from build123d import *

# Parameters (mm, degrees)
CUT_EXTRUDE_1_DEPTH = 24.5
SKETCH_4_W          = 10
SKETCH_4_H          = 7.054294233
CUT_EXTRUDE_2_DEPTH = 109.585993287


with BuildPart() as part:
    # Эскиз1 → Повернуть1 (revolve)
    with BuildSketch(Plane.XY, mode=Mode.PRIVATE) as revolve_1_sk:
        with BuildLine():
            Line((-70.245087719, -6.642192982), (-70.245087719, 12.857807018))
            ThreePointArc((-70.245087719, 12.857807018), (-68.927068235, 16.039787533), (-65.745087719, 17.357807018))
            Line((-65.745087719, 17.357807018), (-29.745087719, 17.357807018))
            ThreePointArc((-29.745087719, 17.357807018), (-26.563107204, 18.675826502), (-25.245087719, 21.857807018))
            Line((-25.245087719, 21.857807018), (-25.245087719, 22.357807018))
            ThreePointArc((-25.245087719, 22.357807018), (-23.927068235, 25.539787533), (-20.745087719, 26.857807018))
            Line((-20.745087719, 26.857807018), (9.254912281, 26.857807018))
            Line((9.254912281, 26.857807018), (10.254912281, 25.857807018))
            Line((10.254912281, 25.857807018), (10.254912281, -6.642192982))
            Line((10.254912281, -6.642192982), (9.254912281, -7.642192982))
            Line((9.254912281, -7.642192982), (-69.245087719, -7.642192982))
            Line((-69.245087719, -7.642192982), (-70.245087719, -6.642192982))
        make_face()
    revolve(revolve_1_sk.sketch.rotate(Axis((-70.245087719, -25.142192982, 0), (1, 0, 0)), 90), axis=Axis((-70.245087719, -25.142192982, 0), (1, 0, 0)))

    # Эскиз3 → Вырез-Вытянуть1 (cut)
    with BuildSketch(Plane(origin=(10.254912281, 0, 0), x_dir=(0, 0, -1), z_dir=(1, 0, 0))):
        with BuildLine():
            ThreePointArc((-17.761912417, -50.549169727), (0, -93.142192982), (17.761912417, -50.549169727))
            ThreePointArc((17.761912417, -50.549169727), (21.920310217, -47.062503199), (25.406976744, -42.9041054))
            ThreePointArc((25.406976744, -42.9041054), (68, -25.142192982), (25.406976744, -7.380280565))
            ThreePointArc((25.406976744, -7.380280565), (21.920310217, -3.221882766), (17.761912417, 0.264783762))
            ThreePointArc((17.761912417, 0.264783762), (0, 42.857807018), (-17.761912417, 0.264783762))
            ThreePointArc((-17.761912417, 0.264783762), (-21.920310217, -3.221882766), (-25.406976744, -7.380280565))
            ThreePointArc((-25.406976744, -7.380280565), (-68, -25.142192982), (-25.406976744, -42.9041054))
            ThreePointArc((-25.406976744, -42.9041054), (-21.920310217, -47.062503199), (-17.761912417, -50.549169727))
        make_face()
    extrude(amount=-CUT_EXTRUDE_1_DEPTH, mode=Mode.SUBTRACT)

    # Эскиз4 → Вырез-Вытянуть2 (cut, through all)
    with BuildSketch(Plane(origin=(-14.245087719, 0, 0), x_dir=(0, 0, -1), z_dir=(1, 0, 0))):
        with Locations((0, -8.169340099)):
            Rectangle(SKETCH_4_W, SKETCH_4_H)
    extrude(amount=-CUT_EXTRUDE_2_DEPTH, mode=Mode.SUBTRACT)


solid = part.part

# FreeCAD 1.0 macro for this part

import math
import FreeCAD as App
import Part
import Sketcher

V = App.Vector
Q = App.Units.Quantity

doc = App.newDocument("Part")
body = doc.addObject("PartDesign::Body", "Body")

# Sketch on XY plane
sketch1 = body.newObject("Sketcher::SketchObject", "Sketch")
sketch1.AttachmentSupport = (doc.getObject("XY_Plane"), [""])
sketch1.MapMode = "FlatFace"
sketch1.addGeometry([
    Part.LineSegment(V(-70.2, 12.9, 0), V(-70.2, -6.6, 0)),  # 0
    Part.LineSegment(V(-70.2, -6.6, 0), V(-69.2, -7.6, 0)),  # 1
    Part.LineSegment(V(-69.2, -7.6, 0), V(9.3, -7.6, 0)),  # 2
    Part.LineSegment(V(9.3, -7.6, 0), V(10.3, -6.6, 0)),  # 3
    Part.LineSegment(V(10.3, -6.6, 0), V(10.3, 25.9, 0)),  # 4
    Part.LineSegment(V(10.3, 25.9, 0), V(9.3, 26.9, 0)),  # 5
    Part.LineSegment(V(9.3, 26.9, 0), V(-20.7, 26.9, 0)),  # 6
    Part.ArcOfCircle(Part.Circle(V(-20.7, 22.4, 0), V(0, 0, 1), 4.5), math.radians(90), math.radians(180)),  # 7
    Part.LineSegment(V(-25.2, 22.4, 0), V(-25.2, 21.9, 0)),  # 8
    Part.ArcOfCircle(Part.Circle(V(-29.7, 21.9, 0), V(0, 0, 1), 4.5), math.radians(-90), math.radians(0)),  # 9
    Part.LineSegment(V(-29.7, 17.4, 0), V(-65.7, 17.4, 0)),  # 10
    Part.ArcOfCircle(Part.Circle(V(-65.7, 12.9, 0), V(0, 0, 1), 4.5), math.radians(90), math.radians(180)),  # 11
], False)
sketch1.addGeometry(Part.LineSegment(V(-70.2, -25.1, 0), V(10.3, -25.1, 0)), True)  # axis
sketch1.addConstraint([
    Sketcher.Constraint("Coincident", 0, 2, 1, 1),
    Sketcher.Constraint("Coincident", 1, 2, 2, 1),
    Sketcher.Constraint("Coincident", 2, 2, 3, 1),
    Sketcher.Constraint("Coincident", 3, 2, 4, 1),
    Sketcher.Constraint("Coincident", 4, 2, 5, 1),
    Sketcher.Constraint("Coincident", 5, 2, 6, 1),
    Sketcher.Constraint("Tangent", 6, 2, 7, 1),
    Sketcher.Constraint("Tangent", 7, 2, 8, 1),
    Sketcher.Constraint("Tangent", 8, 2, 9, 2),
    Sketcher.Constraint("Tangent", 9, 1, 10, 1),
    Sketcher.Constraint("Tangent", 10, 2, 11, 1),
    Sketcher.Constraint("Tangent", 11, 2, 0, 1),
    Sketcher.Constraint("Vertical", 0),
    Sketcher.Constraint("Horizontal", 2),
    Sketcher.Constraint("Vertical", 4),
    Sketcher.Constraint("Horizontal", 6),
    Sketcher.Constraint("Vertical", 8),
    Sketcher.Constraint("Horizontal", 10),
    Sketcher.Constraint("Horizontal", 12),
    Sketcher.Constraint("Equal", 7, 9),
    Sketcher.Constraint("Equal", 9, 11),
    Sketcher.Constraint("Perpendicular", 1, 3),
    Sketcher.Constraint("Perpendicular", 3, 5),
    Sketcher.Constraint("Horizontal", 0, 2, 3, 2),
    Sketcher.Constraint("Vertical", 2, 2, 5, 2),
    Sketcher.Constraint("Vertical", 11, 2, 12, 1),
    Sketcher.Constraint("Vertical", 4, 2, 12, 2),
    Sketcher.Constraint("Equal", 1, 3),
    Sketcher.Constraint("Radius", 7, Q("4.5 mm")),
    Sketcher.Constraint("DistanceX", 6, 2, 6, 1, Q("30 mm")),
    Sketcher.Constraint("DistanceX", 10, 2, 10, 1, Q("36 mm")),
    Sketcher.Constraint("DistanceX", 2, 1, 2, 2, Q("78.5 mm")),
    Sketcher.Constraint("DistanceY", 0, 2, 0, 1, Q("19.5 mm")),
    Sketcher.Constraint("DistanceY", 4, 1, 4, 2, Q("32.5 mm")),
    Sketcher.Constraint("DistanceY", 12, 1, 11, 2, Q("38 mm")),
    Sketcher.Constraint("DistanceX", 7, 3, -1, 1, Q("20.745088 mm")),
    Sketcher.Constraint("DistanceY", -1, 1, 7, 3, Q("22.357807 mm")),
])
revolution = body.newObject("PartDesign::Revolution", "Revolution")
revolution.Profile = sketch1
revolution.ReferenceAxis = (sketch1, ["Axis0"])
revolution.Angle = 360

# Sketch on YZ plane
sketch2 = body.newObject("Sketcher::SketchObject", "Sketch001")
sketch2.AttachmentSupport = (doc.getObject("YZ_Plane"), [""])
sketch2.MapMode = "FlatFace"
sketch2.AttachmentOffset = App.Placement(V(0, 0, 10.254912), App.Rotation())
sketch2.addGeometry([
    Part.ArcOfCircle(Part.Circle(V(-68, 0, 0), V(0, 0, 1), 25), math.radians(45), math.radians(315)),  # 0
    Part.ArcOfCircle(Part.Circle(V(-25, 0, 0), V(0, 0, 1), 31), math.radians(-145), math.radians(-125)),  # 1
    Part.ArcOfCircle(Part.Circle(V(-25, -43, 0), V(0, 0, 1), 25), math.radians(135), math.radians(405)),  # 2
    Part.ArcOfCircle(Part.Circle(V(-25, 0, 0), V(0, 0, 1), 31), math.radians(-55), math.radians(-35)),  # 3
    Part.ArcOfCircle(Part.Circle(V(18, 0, 0), V(0, 0, 1), 25), math.radians(-135), math.radians(135)),  # 4
    Part.ArcOfCircle(Part.Circle(V(-25, 0, 0), V(0, 0, 1), 31), math.radians(35), math.radians(55)),  # 5
    Part.ArcOfCircle(Part.Circle(V(-25, 43, 0), V(0, 0, 1), 25), math.radians(-45), math.radians(225)),  # 6
    Part.ArcOfCircle(Part.Circle(V(-25, 0, 0), V(0, 0, 1), 31), math.radians(125), math.radians(145)),  # 7
], False)
sketch2.addConstraint([
    Sketcher.Constraint("Coincident", 0, 2, 1, 1),
    Sketcher.Constraint("Coincident", 1, 2, 2, 1),
    Sketcher.Constraint("Coincident", 2, 2, 3, 1),
    Sketcher.Constraint("Coincident", 3, 2, 4, 1),
    Sketcher.Constraint("Coincident", 4, 2, 5, 1),
    Sketcher.Constraint("Coincident", 5, 2, 6, 1),
    Sketcher.Constraint("Coincident", 6, 2, 7, 1),
    Sketcher.Constraint("Coincident", 7, 2, 0, 1),
    Sketcher.Constraint("Coincident", 3, 3, 1, 3),
    Sketcher.Constraint("Coincident", 5, 3, 1, 3),
    Sketcher.Constraint("Coincident", 7, 3, 1, 3),
    Sketcher.Constraint("Equal", 0, 2),
    Sketcher.Constraint("Equal", 1, 3),
    Sketcher.Constraint("Equal", 2, 4),
    Sketcher.Constraint("Equal", 3, 5),
    Sketcher.Constraint("Equal", 4, 6),
    Sketcher.Constraint("Equal", 5, 7),
    Sketcher.Constraint("Symmetric", 2, 3, 6, 3, -1),
    Sketcher.Constraint("Symmetric", 3, 2, 4, 2, -1),
    Sketcher.Constraint("PointOnObject", 0, 3, -1),
    Sketcher.Constraint("Horizontal", 1, 2, 2, 2),
    Sketcher.Constraint("Horizontal", 0, 2, 3, 2),
    Sketcher.Constraint("Radius", 0, Q("25 mm")),
    Sketcher.Constraint("Radius", 1, Q("31 mm")),
    Sketcher.Constraint("DistanceY", 2, 3, -1, 1, Q("43 mm")),
    Sketcher.Constraint("DistanceX", 0, 3, 1, 3, Q("43 mm")),
    Sketcher.Constraint("DistanceX", 0, 2, -1, 1, Q("50.54917 mm")),
])
pocket1 = body.newObject("PartDesign::Pocket", "Pocket")
pocket1.Profile = sketch2
pocket1.Length = 24.5

# Sketch on YZ plane
sketch3 = body.newObject("Sketcher::SketchObject", "Sketch002")
sketch3.AttachmentSupport = (doc.getObject("YZ_Plane"), [""])
sketch3.MapMode = "FlatFace"
sketch3.AttachmentOffset = App.Placement(V(0, 0, -14.245088), App.Rotation())
sketch3.addGeometry([
    Part.LineSegment(V(-5, 5, 0), V(-12, 5, 0)),
    Part.LineSegment(V(-12, 5, 0), V(-12, -5, 0)),
    Part.LineSegment(V(-12, -5, 0), V(-5, -5, 0)),
    Part.LineSegment(V(-5, -5, 0), V(-5, 5, 0)),
], False)
sketch3.addConstraint([
    Sketcher.Constraint("Coincident", 0, 2, 1, 1),
    Sketcher.Constraint("Coincident", 1, 2, 2, 1),
    Sketcher.Constraint("Coincident", 2, 2, 3, 1),
    Sketcher.Constraint("Coincident", 3, 2, 0, 1),
    Sketcher.Constraint("Horizontal", 0),
    Sketcher.Constraint("Vertical", 1),
    Sketcher.Constraint("Horizontal", 2),
    Sketcher.Constraint("Vertical", 3),
    Sketcher.Constraint("DistanceY", 1, 2, 1, 1, Q("10 mm")),
    Sketcher.Constraint("DistanceY", -1, 1, 0, 2, Q("5 mm")),
    Sketcher.Constraint("DistanceX", 0, 2, 0, 1, Q("7.054294 mm")),
    Sketcher.Constraint("DistanceX", 0, 2, -1, 1, Q("11.696487 mm")),
])
pocket2 = body.newObject("PartDesign::Pocket", "Pocket001")
pocket2.Profile = sketch3
pocket2.Type = "ThroughAll"

doc.recompute()
